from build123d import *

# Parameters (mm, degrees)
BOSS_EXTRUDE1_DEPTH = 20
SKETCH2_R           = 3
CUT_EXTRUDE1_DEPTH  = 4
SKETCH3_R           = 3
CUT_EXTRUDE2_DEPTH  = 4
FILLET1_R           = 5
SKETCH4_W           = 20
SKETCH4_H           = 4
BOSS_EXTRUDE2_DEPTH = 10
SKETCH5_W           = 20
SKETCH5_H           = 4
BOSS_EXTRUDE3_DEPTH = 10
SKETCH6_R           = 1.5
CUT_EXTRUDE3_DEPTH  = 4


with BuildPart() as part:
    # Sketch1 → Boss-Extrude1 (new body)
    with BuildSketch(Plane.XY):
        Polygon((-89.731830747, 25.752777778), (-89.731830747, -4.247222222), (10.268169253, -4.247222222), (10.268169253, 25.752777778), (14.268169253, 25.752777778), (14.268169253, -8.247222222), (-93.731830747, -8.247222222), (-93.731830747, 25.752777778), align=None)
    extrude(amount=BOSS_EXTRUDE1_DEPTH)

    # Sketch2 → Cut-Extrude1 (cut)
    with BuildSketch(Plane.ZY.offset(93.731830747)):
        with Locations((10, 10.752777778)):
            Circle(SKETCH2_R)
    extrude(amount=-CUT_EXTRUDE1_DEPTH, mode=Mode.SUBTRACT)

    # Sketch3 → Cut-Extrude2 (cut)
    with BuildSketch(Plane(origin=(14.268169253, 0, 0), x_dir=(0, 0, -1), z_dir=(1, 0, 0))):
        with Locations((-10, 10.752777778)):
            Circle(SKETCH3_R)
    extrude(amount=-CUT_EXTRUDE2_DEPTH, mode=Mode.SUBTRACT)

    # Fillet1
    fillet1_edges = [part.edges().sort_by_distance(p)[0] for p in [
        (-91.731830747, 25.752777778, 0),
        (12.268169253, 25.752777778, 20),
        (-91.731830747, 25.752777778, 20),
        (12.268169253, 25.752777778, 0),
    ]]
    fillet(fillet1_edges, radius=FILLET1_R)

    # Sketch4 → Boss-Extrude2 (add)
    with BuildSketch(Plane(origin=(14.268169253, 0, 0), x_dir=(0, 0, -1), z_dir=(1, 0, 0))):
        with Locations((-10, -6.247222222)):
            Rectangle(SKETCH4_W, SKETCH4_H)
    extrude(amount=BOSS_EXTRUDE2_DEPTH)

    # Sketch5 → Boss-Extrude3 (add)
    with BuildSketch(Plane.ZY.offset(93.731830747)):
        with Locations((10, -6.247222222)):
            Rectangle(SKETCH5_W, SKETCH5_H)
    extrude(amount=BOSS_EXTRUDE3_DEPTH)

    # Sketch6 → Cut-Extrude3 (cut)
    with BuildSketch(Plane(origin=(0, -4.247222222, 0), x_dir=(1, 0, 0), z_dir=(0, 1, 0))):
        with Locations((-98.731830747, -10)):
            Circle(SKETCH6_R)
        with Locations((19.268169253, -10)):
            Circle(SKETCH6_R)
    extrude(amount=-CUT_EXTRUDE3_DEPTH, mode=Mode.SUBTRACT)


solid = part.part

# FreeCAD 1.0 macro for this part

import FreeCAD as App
import Part
import Sketcher
from FreeCAD import Vector


def edges_at(feature, points):
    """Names of the edges that pass closest to the given points."""
    edges = feature.Shape.Edges
    near = lambda p: min(range(len(edges)), key=lambda i: edges[i].distToShape(Part.Vertex(*p))[0])
    return sorted({f"Edge{near(p) + 1}" for p in points})

doc = App.newDocument("Part")
body = doc.addObject("PartDesign::Body", "Body")

# Sketch on XY plane
sketch1 = body.newObject("Sketcher::SketchObject", "Sketch")
sketch1.AttachmentSupport = (doc.getObject("XY_Plane"), [""])
sketch1.MapMode = "FlatFace"
sketch1.addGeometry(Part.LineSegment(Vector(-89.7, -4.2, 0), Vector(-89.7, 25.8, 0)), False)
sketch1.addGeometry(Part.LineSegment(Vector(-89.7, 25.8, 0), Vector(-93.7, 25.8, 0)), False)
sketch1.addGeometry(Part.LineSegment(Vector(-93.7, 25.8, 0), Vector(-93.7, -8.2, 0)), False)
sketch1.addGeometry(Part.LineSegment(Vector(-93.7, -8.2, 0), Vector(14.3, -8.2, 0)), False)
sketch1.addGeometry(Part.LineSegment(Vector(14.3, -8.2, 0), Vector(14.3, 25.8, 0)), False)
sketch1.addGeometry(Part.LineSegment(Vector(14.3, 25.8, 0), Vector(10.3, 25.8, 0)), False)
sketch1.addGeometry(Part.LineSegment(Vector(10.3, 25.8, 0), Vector(10.3, -4.2, 0)), False)
sketch1.addGeometry(Part.LineSegment(Vector(10.3, -4.2, 0), Vector(-89.7, -4.2, 0)), False)
sketch1.addConstraint(Sketcher.Constraint("Coincident", 0, 2, 1, 1))
sketch1.addConstraint(Sketcher.Constraint("Coincident", 1, 2, 2, 1))
sketch1.addConstraint(Sketcher.Constraint("Coincident", 2, 2, 3, 1))
sketch1.addConstraint(Sketcher.Constraint("Coincident", 3, 2, 4, 1))
sketch1.addConstraint(Sketcher.Constraint("Coincident", 4, 2, 5, 1))
sketch1.addConstraint(Sketcher.Constraint("Coincident", 5, 2, 6, 1))
sketch1.addConstraint(Sketcher.Constraint("Coincident", 6, 2, 7, 1))
sketch1.addConstraint(Sketcher.Constraint("Coincident", 7, 2, 0, 1))
sketch1.addConstraint(Sketcher.Constraint("Vertical", 0))
sketch1.addConstraint(Sketcher.Constraint("Horizontal", 1))
sketch1.addConstraint(Sketcher.Constraint("Vertical", 2))
sketch1.addConstraint(Sketcher.Constraint("Horizontal", 3))
sketch1.addConstraint(Sketcher.Constraint("Vertical", 4))
sketch1.addConstraint(Sketcher.Constraint("Horizontal", 5))
sketch1.addConstraint(Sketcher.Constraint("Vertical", 6))
sketch1.addConstraint(Sketcher.Constraint("Horizontal", 7))
sketch1.addConstraint(Sketcher.Constraint("Horizontal", 1, 2, 4, 2))
sketch1.addConstraint(Sketcher.Constraint("Equal", 1, 5))
sketch1.addConstraint(Sketcher.Constraint("DistanceX", 1, 2, 1, 1, 4.0))
sketch1.addConstraint(Sketcher.Constraint("DistanceX", 3, 1, 3, 2, 108.0))
sketch1.addConstraint(Sketcher.Constraint("DistanceY", 0, 1, 0, 2, 30.0))
sketch1.addConstraint(Sketcher.Constraint("DistanceY", 2, 2, 2, 1, 34.0))
sketch1.addConstraint(Sketcher.Constraint("DistanceX", 0, 2, -1, 1, 89.731831))
sketch1.addConstraint(Sketcher.Constraint("DistanceY", -1, 1, 0, 2, 25.752778))
pad1 = body.newObject("PartDesign::Pad", "Pad")
pad1.Profile = sketch1
pad1.Length = 20

# Sketch on YZ plane
sketch2 = body.newObject("Sketcher::SketchObject", "Sketch001")
sketch2.AttachmentSupport = (doc.getObject("YZ_Plane"), [""])
sketch2.MapMode = "FlatFace"
sketch2.AttachmentOffset = App.Placement(Vector(0, 0, -93.731831), App.Rotation())
sketch2.addGeometry(Part.Circle(Vector(10.8, 10, 0), Vector(0, 0, 1), 3), False)
sketch2.addConstraint(Sketcher.Constraint("Diameter", 0, 6.0))
sketch2.addConstraint(Sketcher.Constraint("DistanceY", -1, 1, 0, 3, 10.0))
sketch2.addConstraint(Sketcher.Constraint("DistanceX", -1, 1, 0, 3, 10.752778))
pocket1 = body.newObject("PartDesign::Pocket", "Pocket")
pocket1.Profile = sketch2
pocket1.Length = 4
pocket1.Reversed = True

# Sketch on YZ plane
sketch3 = body.newObject("Sketcher::SketchObject", "Sketch002")
sketch3.AttachmentSupport = (doc.getObject("YZ_Plane"), [""])
sketch3.MapMode = "FlatFace"
sketch3.AttachmentOffset = App.Placement(Vector(0, 0, 14.268169), App.Rotation())
sketch3.addGeometry(Part.Circle(Vector(10.8, 10, 0), Vector(0, 0, 1), 3), False)
sketch3.addConstraint(Sketcher.Constraint("Diameter", 0, 6.0))
sketch3.addConstraint(Sketcher.Constraint("DistanceY", -1, 1, 0, 3, 10.0))
sketch3.addConstraint(Sketcher.Constraint("DistanceX", -1, 1, 0, 3, 10.752778))
pocket2 = body.newObject("PartDesign::Pocket", "Pocket001")
pocket2.Profile = sketch3
pocket2.Length = 4
doc.recompute()

fillet = body.newObject("PartDesign::Fillet", "Fillet")
fillet.Base = (pocket2, edges_at(pocket2, [
    (-91.732, 25.753, 0),
    (12.268, 25.753, 20),
    (-91.732, 25.753, 20),
    (12.268, 25.753, 0),
]))
fillet.Radius = 5

# Sketch on YZ plane
sketch4 = body.newObject("Sketcher::SketchObject", "Sketch003")
sketch4.AttachmentSupport = (doc.getObject("YZ_Plane"), [""])
sketch4.MapMode = "FlatFace"
sketch4.AttachmentOffset = App.Placement(Vector(0, 0, 14.268169), App.Rotation())
sketch4.addGeometry(Part.LineSegment(Vector(-4.2, 20, 0), Vector(-8.2, 20, 0)), False)
sketch4.addGeometry(Part.LineSegment(Vector(-8.2, 20, 0), Vector(-8.2, 0, 0)), False)
sketch4.addGeometry(Part.LineSegment(Vector(-8.2, 0, 0), Vector(-4.2, 0, 0)), False)
sketch4.addGeometry(Part.LineSegment(Vector(-4.2, 0, 0), Vector(-4.2, 20, 0)), False)
sketch4.addConstraint(Sketcher.Constraint("Coincident", 0, 2, 1, 1))
sketch4.addConstraint(Sketcher.Constraint("Coincident", 1, 2, 2, 1))
sketch4.addConstraint(Sketcher.Constraint("Coincident", 2, 2, 3, 1))
sketch4.addConstraint(Sketcher.Constraint("Coincident", 3, 2, 0, 1))
sketch4.addConstraint(Sketcher.Constraint("Horizontal", 0))
sketch4.addConstraint(Sketcher.Constraint("Vertical", 1))
sketch4.addConstraint(Sketcher.Constraint("Horizontal", 2))
sketch4.addConstraint(Sketcher.Constraint("Vertical", 3))
sketch4.addConstraint(Sketcher.Constraint("PointOnObject", 1, 2, -1))
sketch4.addConstraint(Sketcher.Constraint("DistanceX", 0, 2, 0, 1, 4.0))
sketch4.addConstraint(Sketcher.Constraint("DistanceY", 1, 2, 1, 1, 20.0))
sketch4.addConstraint(Sketcher.Constraint("DistanceX", 0, 2, -1, 1, 8.247222))
pad2 = body.newObject("PartDesign::Pad", "Pad001")
pad2.Profile = sketch4
pad2.Length = 10

# Sketch on YZ plane
sketch5 = body.newObject("Sketcher::SketchObject", "Sketch004")
sketch5.AttachmentSupport = (doc.getObject("YZ_Plane"), [""])
sketch5.MapMode = "FlatFace"
sketch5.AttachmentOffset = App.Placement(Vector(0, 0, -93.731831), App.Rotation())
sketch5.addGeometry(Part.LineSegment(Vector(-4.2, 0, 0), Vector(-8.2, 0, 0)), False)
sketch5.addGeometry(Part.LineSegment(Vector(-8.2, 0, 0), Vector(-8.2, 20, 0)), False)
sketch5.addGeometry(Part.LineSegment(Vector(-8.2, 20, 0), Vector(-4.2, 20, 0)), False)
sketch5.addGeometry(Part.LineSegment(Vector(-4.2, 20, 0), Vector(-4.2, 0, 0)), False)
sketch5.addConstraint(Sketcher.Constraint("Coincident", 0, 2, 1, 1))
sketch5.addConstraint(Sketcher.Constraint("Coincident", 1, 2, 2, 1))
sketch5.addConstraint(Sketcher.Constraint("Coincident", 2, 2, 3, 1))
sketch5.addConstraint(Sketcher.Constraint("Coincident", 3, 2, 0, 1))
sketch5.addConstraint(Sketcher.Constraint("Horizontal", 0))
sketch5.addConstraint(Sketcher.Constraint("Vertical", 1))
sketch5.addConstraint(Sketcher.Constraint("Horizontal", 2))
sketch5.addConstraint(Sketcher.Constraint("Vertical", 3))
sketch5.addConstraint(Sketcher.Constraint("PointOnObject", 0, 2, -1))
sketch5.addConstraint(Sketcher.Constraint("DistanceX", 0, 2, 0, 1, 4.0))
sketch5.addConstraint(Sketcher.Constraint("DistanceY", 1, 1, 1, 2, 20.0))
sketch5.addConstraint(Sketcher.Constraint("DistanceX", 0, 2, -1, 1, 8.247222))
pad3 = body.newObject("PartDesign::Pad", "Pad002")
pad3.Profile = sketch5
pad3.Length = 10
pad3.Reversed = True

# Sketch on XZ plane
sketch6 = body.newObject("Sketcher::SketchObject", "Sketch005")
sketch6.AttachmentSupport = (doc.getObject("XZ_Plane"), [""])
sketch6.MapMode = "FlatFace"
sketch6.AttachmentOffset = App.Placement(Vector(0, 0, 4.247222), App.Rotation())
sketch6.addGeometry(Part.Circle(Vector(-98.7, 10, 0), Vector(0, 0, 1), 1.5), False)
sketch6.addGeometry(Part.Circle(Vector(19.3, 10, 0), Vector(0, 0, 1), 1.5), False)
sketch6.addConstraint(Sketcher.Constraint("Equal", 0, 1))
sketch6.addConstraint(Sketcher.Constraint("Horizontal", 0, 3, 1, 3))
sketch6.addConstraint(Sketcher.Constraint("Diameter", 0, 3.0))
sketch6.addConstraint(Sketcher.Constraint("DistanceY", -1, 1, 0, 3, 10.0))
sketch6.addConstraint(Sketcher.Constraint("DistanceX", 0, 3, 1, 3, 118.0))
sketch6.addConstraint(Sketcher.Constraint("DistanceX", 0, 3, -1, 1, 98.731831))
pocket3 = body.newObject("PartDesign::Pocket", "Pocket002")
pocket3.Profile = sketch6
pocket3.Length = 4
pocket3.Reversed = True

doc.recompute()
